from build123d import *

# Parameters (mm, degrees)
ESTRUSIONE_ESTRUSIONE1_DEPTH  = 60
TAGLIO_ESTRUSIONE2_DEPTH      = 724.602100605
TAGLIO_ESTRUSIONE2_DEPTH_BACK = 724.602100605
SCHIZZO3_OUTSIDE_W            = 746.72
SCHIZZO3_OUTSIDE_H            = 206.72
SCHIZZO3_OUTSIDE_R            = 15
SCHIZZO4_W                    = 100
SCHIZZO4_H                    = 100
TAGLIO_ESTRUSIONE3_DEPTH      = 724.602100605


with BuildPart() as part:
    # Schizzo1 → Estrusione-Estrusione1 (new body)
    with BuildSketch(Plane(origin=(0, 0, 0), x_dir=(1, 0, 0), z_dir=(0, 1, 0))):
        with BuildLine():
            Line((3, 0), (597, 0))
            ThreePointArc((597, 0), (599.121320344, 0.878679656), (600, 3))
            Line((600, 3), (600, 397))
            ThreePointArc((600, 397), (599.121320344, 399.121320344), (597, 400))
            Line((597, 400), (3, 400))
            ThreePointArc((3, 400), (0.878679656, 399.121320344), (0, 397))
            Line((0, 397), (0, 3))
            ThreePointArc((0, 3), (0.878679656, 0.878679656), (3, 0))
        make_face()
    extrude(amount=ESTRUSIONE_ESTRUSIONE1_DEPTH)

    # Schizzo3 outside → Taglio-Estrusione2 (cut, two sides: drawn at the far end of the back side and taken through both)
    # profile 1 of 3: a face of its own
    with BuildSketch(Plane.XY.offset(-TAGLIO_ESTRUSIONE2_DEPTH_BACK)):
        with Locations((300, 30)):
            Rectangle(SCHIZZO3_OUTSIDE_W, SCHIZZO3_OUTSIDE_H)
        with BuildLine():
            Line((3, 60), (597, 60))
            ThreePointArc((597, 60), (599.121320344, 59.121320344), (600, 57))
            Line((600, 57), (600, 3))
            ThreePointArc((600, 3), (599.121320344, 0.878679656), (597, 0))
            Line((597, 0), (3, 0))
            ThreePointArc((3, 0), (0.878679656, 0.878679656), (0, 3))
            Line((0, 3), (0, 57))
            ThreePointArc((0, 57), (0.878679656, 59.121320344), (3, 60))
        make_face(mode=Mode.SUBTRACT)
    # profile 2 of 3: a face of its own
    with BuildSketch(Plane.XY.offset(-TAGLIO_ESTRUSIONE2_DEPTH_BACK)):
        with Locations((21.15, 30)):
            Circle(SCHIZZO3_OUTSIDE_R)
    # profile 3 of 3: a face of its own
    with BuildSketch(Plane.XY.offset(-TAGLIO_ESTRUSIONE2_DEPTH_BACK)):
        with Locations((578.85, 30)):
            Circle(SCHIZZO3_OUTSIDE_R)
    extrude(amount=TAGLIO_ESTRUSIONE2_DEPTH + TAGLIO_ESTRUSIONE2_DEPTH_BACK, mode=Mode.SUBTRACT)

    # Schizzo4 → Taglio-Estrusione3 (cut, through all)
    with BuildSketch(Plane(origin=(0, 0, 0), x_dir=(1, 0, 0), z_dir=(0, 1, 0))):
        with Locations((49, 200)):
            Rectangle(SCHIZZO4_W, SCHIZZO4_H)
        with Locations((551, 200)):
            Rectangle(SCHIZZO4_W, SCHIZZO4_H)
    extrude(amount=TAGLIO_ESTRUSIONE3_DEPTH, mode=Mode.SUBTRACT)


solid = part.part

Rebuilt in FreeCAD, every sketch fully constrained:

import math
import FreeCAD as App
import Part
import Sketcher


def add_polygon(sketch, points):
    """Adds a closed chain of lines whose ends are joined by coincident constraints."""
    first, n = sketch.GeometryCount, len(points)
    for a, b in zip(points, points[1:] + points[:1]):
        sketch.addGeometry(Part.LineSegment(App.Vector(*a, 0), App.Vector(*b, 0)), False)
    for i in range(n):
        sketch.addConstraint(Sketcher.Constraint("Coincident", first + i, 2, first + (i + 1) % n, 1))

doc = App.newDocument("Part")
params = doc.addObject("Spreadsheet::Sheet", "Params")
for row, (alias, value) in enumerate([
    ("sketch1_radius", "3 mm"),
    ("sketch1_width", "594 mm"),
    ("sketch1_height", "394 mm"),
    ("pad1_length", "60 mm"),
    ("sketch2_diameter", "30 mm"),
    ("sketch2_radius", "3 mm"),
    ("sketch2_width", "594 mm"),
    ("sketch2_height", "54 mm"),
    ("sketch2_width2", "746.72 mm"),
    ("sketch3_width", "100 mm"),
], start=1):
    params.set(f"A{row}", alias)
    params.set(f"B{row}", "=" + value)
    params.setAlias(f"B{row}", alias)

body = doc.addObject("PartDesign::Body", "Body")

# Sketch on XZ plane
sketch1 = doc.addObject("Sketcher::SketchObject", "Sketch")
body.addObject(sketch1)
sketch1.AttachmentSupport = (doc.XZ_Plane, [""])
sketch1.MapMode = "FlatFace"
sketch1.addGeometry(Part.LineSegment(App.Vector(3, 0, 0), App.Vector(597, 0, 0)), False)
sketch1.addGeometry(Part.ArcOfCircle(Part.Circle(App.Vector(597, -3, 0), App.Vector(0, 0, 1), 3), math.radians(0), math.radians(90)), False)
sketch1.addGeometry(Part.LineSegment(App.Vector(600, -3, 0), App.Vector(600, -397, 0)), False)
sketch1.addGeometry(Part.ArcOfCircle(Part.Circle(App.Vector(597, -397, 0), App.Vector(0, 0, 1), 3), math.radians(-90), math.radians(0)), False)
sketch1.addGeometry(Part.LineSegment(App.Vector(597, -400, 0), App.Vector(3, -400, 0)), False)
sketch1.addGeometry(Part.ArcOfCircle(Part.Circle(App.Vector(3, -397, 0), App.Vector(0, 0, 1), 3), math.radians(180), math.radians(270)), False)
sketch1.addGeometry(Part.LineSegment(App.Vector(0, -397, 0), App.Vector(0, -3, 0)), False)
sketch1.addGeometry(Part.ArcOfCircle(Part.Circle(App.Vector(3, -3, 0), App.Vector(0, 0, 1), 3), math.radians(90), math.radians(180)), False)
sketch1.addConstraint(Sketcher.Constraint("Tangent", 0, 2, 1, 2))
sketch1.addConstraint(Sketcher.Constraint("Tangent", 1, 1, 2, 1))
sketch1.addConstraint(Sketcher.Constraint("Tangent", 2, 2, 3, 2))
sketch1.addConstraint(Sketcher.Constraint("Tangent", 3, 1, 4, 1))
sketch1.addConstraint(Sketcher.Constraint("Tangent", 4, 2, 5, 2))
sketch1.addConstraint(Sketcher.Constraint("Tangent", 5, 1, 6, 1))
sketch1.addConstraint(Sketcher.Constraint("Tangent", 6, 2, 7, 2))
sketch1.addConstraint(Sketcher.Constraint("Tangent", 7, 1, 0, 1))
sketch1.addConstraint(Sketcher.Constraint("Horizontal", 0))
sketch1.addConstraint(Sketcher.Constraint("Vertical", 2))
sketch1.addConstraint(Sketcher.Constraint("Horizontal", 4))
sketch1.addConstraint(Sketcher.Constraint("Vertical", 6))
sketch1.addConstraint(Sketcher.Constraint("Equal", 1, 3))
sketch1.addConstraint(Sketcher.Constraint("Equal", 3, 5))
sketch1.addConstraint(Sketcher.Constraint("Equal", 5, 7))
sketch1.addConstraint(Sketcher.Constraint("PointOnObject", 0, 2, -1))
sketch1.addConstraint(Sketcher.Constraint("PointOnObject", 5, 1, -2))
sketch1.addConstraint(Sketcher.Constraint("Radius", 1, 3.0))
sketch1.addConstraint(Sketcher.Constraint("DistanceX", 0, 1, 0, 2, 594.0))
sketch1.addConstraint(Sketcher.Constraint("DistanceY", 2, 2, 2, 1, 394.0))
sketch1.setExpression("Constraints[17]", "Params.sketch1_radius")
sketch1.setExpression("Constraints[18]", "Params.sketch1_width")
sketch1.setExpression("Constraints[19]", "Params.sketch1_height")
pad1 = doc.addObject("PartDesign::Pad", "Pad")
body.addObject(pad1)
pad1.Profile = sketch1
pad1.setExpression("Length", "Params.pad1_length")
pad1.Reversed = True

# Sketch on XY plane
sketch2 = doc.addObject("Sketcher::SketchObject", "Sketch001")
body.addObject(sketch2)
sketch2.AttachmentSupport = (doc.XY_Plane, [""])
sketch2.MapMode = "FlatFace"
add_polygon(sketch2, [(-73.4, 133.4), (-73.4, -73.4), (673.4, -73.4), (673.4, 133.4)])  # lines 0-3
sketch2.addGeometry(Part.ArcOfCircle(Part.Circle(App.Vector(3, 57, 0), App.Vector(0, 0, 1), 3), math.radians(90), math.radians(180)), False)  # 4
sketch2.addGeometry(Part.LineSegment(App.Vector(3, 60, 0), App.Vector(597, 60, 0)), False)  # 5
sketch2.addGeometry(Part.ArcOfCircle(Part.Circle(App.Vector(597, 57, 0), App.Vector(0, 0, 1), 3), math.radians(0), math.radians(90)), False)  # 6
sketch2.addGeometry(Part.LineSegment(App.Vector(600, 57, 0), App.Vector(600, 3, 0)), False)  # 7
sketch2.addGeometry(Part.ArcOfCircle(Part.Circle(App.Vector(597, 3, 0), App.Vector(0, 0, 1), 3), math.radians(-90), math.radians(0)), False)  # 8
sketch2.addGeometry(Part.LineSegment(App.Vector(597, 0, 0), App.Vector(3, 0, 0)), False)  # 9
sketch2.addGeometry(Part.ArcOfCircle(Part.Circle(App.Vector(3, 3, 0), App.Vector(0, 0, 1), 3), math.radians(180), math.radians(270)), False)  # 10
sketch2.addGeometry(Part.LineSegment(App.Vector(0, 3, 0), App.Vector(0, 57, 0)), False)  # 11
sketch2.addGeometry(Part.Circle(App.Vector(21.1, 30, 0), App.Vector(0, 0, 1), 15), False)  # 12
sketch2.addGeometry(Part.Circle(App.Vector(578.9, 30, 0), App.Vector(0, 0, 1), 15), False)  # 13
sketch2.addConstraint(Sketcher.Constraint("Tangent", 4, 1, 5, 1))
sketch2.addConstraint(Sketcher.Constraint("Tangent", 5, 2, 6, 2))
sketch2.addConstraint(Sketcher.Constraint("Tangent", 6, 1, 7, 1))
sketch2.addConstraint(Sketcher.Constraint("Tangent", 7, 2, 8, 2))
sketch2.addConstraint(Sketcher.Constraint("Tangent", 8, 1, 9, 1))
sketch2.addConstraint(Sketcher.Constraint("Tangent", 9, 2, 10, 2))
sketch2.addConstraint(Sketcher.Constraint("Tangent", 10, 1, 11, 1))
sketch2.addConstraint(Sketcher.Constraint("Tangent", 11, 2, 4, 2))
sketch2.addConstraint(Sketcher.Constraint("Vertical", 0))
sketch2.addConstraint(Sketcher.Constraint("Horizontal", 1))
sketch2.addConstraint(Sketcher.Constraint("Vertical", 2))
sketch2.addConstraint(Sketcher.Constraint("Horizontal", 3))
sketch2.addConstraint(Sketcher.Constraint("Horizontal", 5))
sketch2.addConstraint(Sketcher.Constraint("Vertical", 7))
sketch2.addConstraint(Sketcher.Constraint("Horizontal", 9))
sketch2.addConstraint(Sketcher.Constraint("Vertical", 11))
sketch2.addConstraint(Sketcher.Constraint("Equal", 4, 6))
sketch2.addConstraint(Sketcher.Constraint("Equal", 6, 8))
sketch2.addConstraint(Sketcher.Constraint("Equal", 8, 10))
sketch2.addConstraint(Sketcher.Constraint("Equal", 12, 13))
sketch2.addConstraint(Sketcher.Constraint("PointOnObject", 8, 1, -1))
sketch2.addConstraint(Sketcher.Constraint("PointOnObject", 10, 1, -2))
sketch2.addConstraint(Sketcher.Constraint("Horizontal", 12, 3, 13, 3))
sketch2.addConstraint(Sketcher.Constraint("Diameter", 12, 30.0))
sketch2.addConstraint(Sketcher.Constraint("Radius", 4, 3.0))
sketch2.addConstraint(Sketcher.Constraint("DistanceX", 5, 1, 5, 2, 594.0))
sketch2.addConstraint(Sketcher.Constraint("DistanceY", 7, 2, 7, 1, 54.0))
sketch2.addConstraint(Sketcher.Constraint("DistanceY", -1, 1, 12, 3, 30.0))
sketch2.addConstraint(Sketcher.Constraint("DistanceX", 1, 1, 1, 2, 746.72))
sketch2.addConstraint(Sketcher.Constraint("DistanceY", 0, 2, 0, 1, 206.72))
sketch2.addConstraint(Sketcher.Constraint("DistanceX", 12, 3, 13, 3, 557.7))
sketch2.addConstraint(Sketcher.Constraint("DistanceX", -1, 1, 12, 3, 21.15))
sketch2.addConstraint(Sketcher.Constraint("DistanceX", 0, 2, -1, 1, 73.36))
sketch2.addConstraint(Sketcher.Constraint("DistanceY", 0, 2, -1, 1, 73.36))
sketch2.setExpression("Constraints[27]", "Params.sketch2_diameter")
sketch2.setExpression("Constraints[28]", "Params.sketch2_radius")
sketch2.setExpression("Constraints[29]", "Params.sketch2_width")
sketch2.setExpression("Constraints[30]", "Params.sketch2_height")
sketch2.setExpression("Constraints[32]", "Params.sketch2_width2")
pocket1 = doc.addObject("PartDesign::Pocket", "Pocket")
body.addObject(pocket1)
pocket1.Profile = sketch2
pocket1.Type = "ThroughAll"
pocket1.Midplane = True

# Sketch on XZ plane
sketch3 = doc.addObject("Sketcher::SketchObject", "Sketch002")
body.addObject(sketch3)
sketch3.AttachmentSupport = (doc.XZ_Plane, [""])
sketch3.MapMode = "FlatFace"
add_polygon(sketch3, [(-1, -250), (-1, -150), (99, -150), (99, -250)])  # lines 0-3
add_polygon(sketch3, [(501, -250), (501, -150), (601, -150), (601, -250)])  # lines 4-7
sketch3.addConstraint(Sketcher.Constraint("Vertical", 0))
sketch3.addConstraint(Sketcher.Constraint("Horizontal", 1))
sketch3.addConstraint(Sketcher.Constraint("Vertical", 2))
sketch3.addConstraint(Sketcher.Constraint("Horizontal", 3))
sketch3.addConstraint(Sketcher.Constraint("Vertical", 4))
sketch3.addConstraint(Sketcher.Constraint("Horizontal", 5))
sketch3.addConstraint(Sketcher.Constraint("Vertical", 6))
sketch3.addConstraint(Sketcher.Constraint("Horizontal", 7))
sketch3.addConstraint(Sketcher.Constraint("Horizontal", 1, 2, 4, 2))
sketch3.addConstraint(Sketcher.Constraint("Horizontal", 3, 2, 6, 2))
sketch3.addConstraint(Sketcher.Constraint("Equal", 3, 5))
sketch3.addConstraint(Sketcher.Constraint("Equal", 7, 0))
sketch3.addConstraint(Sketcher.Constraint("DistanceX", 1, 1, 1, 2, 100.0))
sketch3.addConstraint(Sketcher.Constraint("DistanceX", 0, 2, -1, 1, 1.0))
sketch3.addConstraint(Sketcher.Constraint("DistanceY", 0, 2, -1, 1, 150.0))
sketch3.addConstraint(Sketcher.Constraint("DistanceX", -1, 1, 4, 2, 501.0))
sketch3.setExpression("Constraints[20]", "Params.sketch3_width")
pocket2 = doc.addObject("PartDesign::Pocket", "Pocket001")
body.addObject(pocket2)
pocket2.Profile = sketch3
pocket2.Type = "ThroughAll"

doc.recompute()
